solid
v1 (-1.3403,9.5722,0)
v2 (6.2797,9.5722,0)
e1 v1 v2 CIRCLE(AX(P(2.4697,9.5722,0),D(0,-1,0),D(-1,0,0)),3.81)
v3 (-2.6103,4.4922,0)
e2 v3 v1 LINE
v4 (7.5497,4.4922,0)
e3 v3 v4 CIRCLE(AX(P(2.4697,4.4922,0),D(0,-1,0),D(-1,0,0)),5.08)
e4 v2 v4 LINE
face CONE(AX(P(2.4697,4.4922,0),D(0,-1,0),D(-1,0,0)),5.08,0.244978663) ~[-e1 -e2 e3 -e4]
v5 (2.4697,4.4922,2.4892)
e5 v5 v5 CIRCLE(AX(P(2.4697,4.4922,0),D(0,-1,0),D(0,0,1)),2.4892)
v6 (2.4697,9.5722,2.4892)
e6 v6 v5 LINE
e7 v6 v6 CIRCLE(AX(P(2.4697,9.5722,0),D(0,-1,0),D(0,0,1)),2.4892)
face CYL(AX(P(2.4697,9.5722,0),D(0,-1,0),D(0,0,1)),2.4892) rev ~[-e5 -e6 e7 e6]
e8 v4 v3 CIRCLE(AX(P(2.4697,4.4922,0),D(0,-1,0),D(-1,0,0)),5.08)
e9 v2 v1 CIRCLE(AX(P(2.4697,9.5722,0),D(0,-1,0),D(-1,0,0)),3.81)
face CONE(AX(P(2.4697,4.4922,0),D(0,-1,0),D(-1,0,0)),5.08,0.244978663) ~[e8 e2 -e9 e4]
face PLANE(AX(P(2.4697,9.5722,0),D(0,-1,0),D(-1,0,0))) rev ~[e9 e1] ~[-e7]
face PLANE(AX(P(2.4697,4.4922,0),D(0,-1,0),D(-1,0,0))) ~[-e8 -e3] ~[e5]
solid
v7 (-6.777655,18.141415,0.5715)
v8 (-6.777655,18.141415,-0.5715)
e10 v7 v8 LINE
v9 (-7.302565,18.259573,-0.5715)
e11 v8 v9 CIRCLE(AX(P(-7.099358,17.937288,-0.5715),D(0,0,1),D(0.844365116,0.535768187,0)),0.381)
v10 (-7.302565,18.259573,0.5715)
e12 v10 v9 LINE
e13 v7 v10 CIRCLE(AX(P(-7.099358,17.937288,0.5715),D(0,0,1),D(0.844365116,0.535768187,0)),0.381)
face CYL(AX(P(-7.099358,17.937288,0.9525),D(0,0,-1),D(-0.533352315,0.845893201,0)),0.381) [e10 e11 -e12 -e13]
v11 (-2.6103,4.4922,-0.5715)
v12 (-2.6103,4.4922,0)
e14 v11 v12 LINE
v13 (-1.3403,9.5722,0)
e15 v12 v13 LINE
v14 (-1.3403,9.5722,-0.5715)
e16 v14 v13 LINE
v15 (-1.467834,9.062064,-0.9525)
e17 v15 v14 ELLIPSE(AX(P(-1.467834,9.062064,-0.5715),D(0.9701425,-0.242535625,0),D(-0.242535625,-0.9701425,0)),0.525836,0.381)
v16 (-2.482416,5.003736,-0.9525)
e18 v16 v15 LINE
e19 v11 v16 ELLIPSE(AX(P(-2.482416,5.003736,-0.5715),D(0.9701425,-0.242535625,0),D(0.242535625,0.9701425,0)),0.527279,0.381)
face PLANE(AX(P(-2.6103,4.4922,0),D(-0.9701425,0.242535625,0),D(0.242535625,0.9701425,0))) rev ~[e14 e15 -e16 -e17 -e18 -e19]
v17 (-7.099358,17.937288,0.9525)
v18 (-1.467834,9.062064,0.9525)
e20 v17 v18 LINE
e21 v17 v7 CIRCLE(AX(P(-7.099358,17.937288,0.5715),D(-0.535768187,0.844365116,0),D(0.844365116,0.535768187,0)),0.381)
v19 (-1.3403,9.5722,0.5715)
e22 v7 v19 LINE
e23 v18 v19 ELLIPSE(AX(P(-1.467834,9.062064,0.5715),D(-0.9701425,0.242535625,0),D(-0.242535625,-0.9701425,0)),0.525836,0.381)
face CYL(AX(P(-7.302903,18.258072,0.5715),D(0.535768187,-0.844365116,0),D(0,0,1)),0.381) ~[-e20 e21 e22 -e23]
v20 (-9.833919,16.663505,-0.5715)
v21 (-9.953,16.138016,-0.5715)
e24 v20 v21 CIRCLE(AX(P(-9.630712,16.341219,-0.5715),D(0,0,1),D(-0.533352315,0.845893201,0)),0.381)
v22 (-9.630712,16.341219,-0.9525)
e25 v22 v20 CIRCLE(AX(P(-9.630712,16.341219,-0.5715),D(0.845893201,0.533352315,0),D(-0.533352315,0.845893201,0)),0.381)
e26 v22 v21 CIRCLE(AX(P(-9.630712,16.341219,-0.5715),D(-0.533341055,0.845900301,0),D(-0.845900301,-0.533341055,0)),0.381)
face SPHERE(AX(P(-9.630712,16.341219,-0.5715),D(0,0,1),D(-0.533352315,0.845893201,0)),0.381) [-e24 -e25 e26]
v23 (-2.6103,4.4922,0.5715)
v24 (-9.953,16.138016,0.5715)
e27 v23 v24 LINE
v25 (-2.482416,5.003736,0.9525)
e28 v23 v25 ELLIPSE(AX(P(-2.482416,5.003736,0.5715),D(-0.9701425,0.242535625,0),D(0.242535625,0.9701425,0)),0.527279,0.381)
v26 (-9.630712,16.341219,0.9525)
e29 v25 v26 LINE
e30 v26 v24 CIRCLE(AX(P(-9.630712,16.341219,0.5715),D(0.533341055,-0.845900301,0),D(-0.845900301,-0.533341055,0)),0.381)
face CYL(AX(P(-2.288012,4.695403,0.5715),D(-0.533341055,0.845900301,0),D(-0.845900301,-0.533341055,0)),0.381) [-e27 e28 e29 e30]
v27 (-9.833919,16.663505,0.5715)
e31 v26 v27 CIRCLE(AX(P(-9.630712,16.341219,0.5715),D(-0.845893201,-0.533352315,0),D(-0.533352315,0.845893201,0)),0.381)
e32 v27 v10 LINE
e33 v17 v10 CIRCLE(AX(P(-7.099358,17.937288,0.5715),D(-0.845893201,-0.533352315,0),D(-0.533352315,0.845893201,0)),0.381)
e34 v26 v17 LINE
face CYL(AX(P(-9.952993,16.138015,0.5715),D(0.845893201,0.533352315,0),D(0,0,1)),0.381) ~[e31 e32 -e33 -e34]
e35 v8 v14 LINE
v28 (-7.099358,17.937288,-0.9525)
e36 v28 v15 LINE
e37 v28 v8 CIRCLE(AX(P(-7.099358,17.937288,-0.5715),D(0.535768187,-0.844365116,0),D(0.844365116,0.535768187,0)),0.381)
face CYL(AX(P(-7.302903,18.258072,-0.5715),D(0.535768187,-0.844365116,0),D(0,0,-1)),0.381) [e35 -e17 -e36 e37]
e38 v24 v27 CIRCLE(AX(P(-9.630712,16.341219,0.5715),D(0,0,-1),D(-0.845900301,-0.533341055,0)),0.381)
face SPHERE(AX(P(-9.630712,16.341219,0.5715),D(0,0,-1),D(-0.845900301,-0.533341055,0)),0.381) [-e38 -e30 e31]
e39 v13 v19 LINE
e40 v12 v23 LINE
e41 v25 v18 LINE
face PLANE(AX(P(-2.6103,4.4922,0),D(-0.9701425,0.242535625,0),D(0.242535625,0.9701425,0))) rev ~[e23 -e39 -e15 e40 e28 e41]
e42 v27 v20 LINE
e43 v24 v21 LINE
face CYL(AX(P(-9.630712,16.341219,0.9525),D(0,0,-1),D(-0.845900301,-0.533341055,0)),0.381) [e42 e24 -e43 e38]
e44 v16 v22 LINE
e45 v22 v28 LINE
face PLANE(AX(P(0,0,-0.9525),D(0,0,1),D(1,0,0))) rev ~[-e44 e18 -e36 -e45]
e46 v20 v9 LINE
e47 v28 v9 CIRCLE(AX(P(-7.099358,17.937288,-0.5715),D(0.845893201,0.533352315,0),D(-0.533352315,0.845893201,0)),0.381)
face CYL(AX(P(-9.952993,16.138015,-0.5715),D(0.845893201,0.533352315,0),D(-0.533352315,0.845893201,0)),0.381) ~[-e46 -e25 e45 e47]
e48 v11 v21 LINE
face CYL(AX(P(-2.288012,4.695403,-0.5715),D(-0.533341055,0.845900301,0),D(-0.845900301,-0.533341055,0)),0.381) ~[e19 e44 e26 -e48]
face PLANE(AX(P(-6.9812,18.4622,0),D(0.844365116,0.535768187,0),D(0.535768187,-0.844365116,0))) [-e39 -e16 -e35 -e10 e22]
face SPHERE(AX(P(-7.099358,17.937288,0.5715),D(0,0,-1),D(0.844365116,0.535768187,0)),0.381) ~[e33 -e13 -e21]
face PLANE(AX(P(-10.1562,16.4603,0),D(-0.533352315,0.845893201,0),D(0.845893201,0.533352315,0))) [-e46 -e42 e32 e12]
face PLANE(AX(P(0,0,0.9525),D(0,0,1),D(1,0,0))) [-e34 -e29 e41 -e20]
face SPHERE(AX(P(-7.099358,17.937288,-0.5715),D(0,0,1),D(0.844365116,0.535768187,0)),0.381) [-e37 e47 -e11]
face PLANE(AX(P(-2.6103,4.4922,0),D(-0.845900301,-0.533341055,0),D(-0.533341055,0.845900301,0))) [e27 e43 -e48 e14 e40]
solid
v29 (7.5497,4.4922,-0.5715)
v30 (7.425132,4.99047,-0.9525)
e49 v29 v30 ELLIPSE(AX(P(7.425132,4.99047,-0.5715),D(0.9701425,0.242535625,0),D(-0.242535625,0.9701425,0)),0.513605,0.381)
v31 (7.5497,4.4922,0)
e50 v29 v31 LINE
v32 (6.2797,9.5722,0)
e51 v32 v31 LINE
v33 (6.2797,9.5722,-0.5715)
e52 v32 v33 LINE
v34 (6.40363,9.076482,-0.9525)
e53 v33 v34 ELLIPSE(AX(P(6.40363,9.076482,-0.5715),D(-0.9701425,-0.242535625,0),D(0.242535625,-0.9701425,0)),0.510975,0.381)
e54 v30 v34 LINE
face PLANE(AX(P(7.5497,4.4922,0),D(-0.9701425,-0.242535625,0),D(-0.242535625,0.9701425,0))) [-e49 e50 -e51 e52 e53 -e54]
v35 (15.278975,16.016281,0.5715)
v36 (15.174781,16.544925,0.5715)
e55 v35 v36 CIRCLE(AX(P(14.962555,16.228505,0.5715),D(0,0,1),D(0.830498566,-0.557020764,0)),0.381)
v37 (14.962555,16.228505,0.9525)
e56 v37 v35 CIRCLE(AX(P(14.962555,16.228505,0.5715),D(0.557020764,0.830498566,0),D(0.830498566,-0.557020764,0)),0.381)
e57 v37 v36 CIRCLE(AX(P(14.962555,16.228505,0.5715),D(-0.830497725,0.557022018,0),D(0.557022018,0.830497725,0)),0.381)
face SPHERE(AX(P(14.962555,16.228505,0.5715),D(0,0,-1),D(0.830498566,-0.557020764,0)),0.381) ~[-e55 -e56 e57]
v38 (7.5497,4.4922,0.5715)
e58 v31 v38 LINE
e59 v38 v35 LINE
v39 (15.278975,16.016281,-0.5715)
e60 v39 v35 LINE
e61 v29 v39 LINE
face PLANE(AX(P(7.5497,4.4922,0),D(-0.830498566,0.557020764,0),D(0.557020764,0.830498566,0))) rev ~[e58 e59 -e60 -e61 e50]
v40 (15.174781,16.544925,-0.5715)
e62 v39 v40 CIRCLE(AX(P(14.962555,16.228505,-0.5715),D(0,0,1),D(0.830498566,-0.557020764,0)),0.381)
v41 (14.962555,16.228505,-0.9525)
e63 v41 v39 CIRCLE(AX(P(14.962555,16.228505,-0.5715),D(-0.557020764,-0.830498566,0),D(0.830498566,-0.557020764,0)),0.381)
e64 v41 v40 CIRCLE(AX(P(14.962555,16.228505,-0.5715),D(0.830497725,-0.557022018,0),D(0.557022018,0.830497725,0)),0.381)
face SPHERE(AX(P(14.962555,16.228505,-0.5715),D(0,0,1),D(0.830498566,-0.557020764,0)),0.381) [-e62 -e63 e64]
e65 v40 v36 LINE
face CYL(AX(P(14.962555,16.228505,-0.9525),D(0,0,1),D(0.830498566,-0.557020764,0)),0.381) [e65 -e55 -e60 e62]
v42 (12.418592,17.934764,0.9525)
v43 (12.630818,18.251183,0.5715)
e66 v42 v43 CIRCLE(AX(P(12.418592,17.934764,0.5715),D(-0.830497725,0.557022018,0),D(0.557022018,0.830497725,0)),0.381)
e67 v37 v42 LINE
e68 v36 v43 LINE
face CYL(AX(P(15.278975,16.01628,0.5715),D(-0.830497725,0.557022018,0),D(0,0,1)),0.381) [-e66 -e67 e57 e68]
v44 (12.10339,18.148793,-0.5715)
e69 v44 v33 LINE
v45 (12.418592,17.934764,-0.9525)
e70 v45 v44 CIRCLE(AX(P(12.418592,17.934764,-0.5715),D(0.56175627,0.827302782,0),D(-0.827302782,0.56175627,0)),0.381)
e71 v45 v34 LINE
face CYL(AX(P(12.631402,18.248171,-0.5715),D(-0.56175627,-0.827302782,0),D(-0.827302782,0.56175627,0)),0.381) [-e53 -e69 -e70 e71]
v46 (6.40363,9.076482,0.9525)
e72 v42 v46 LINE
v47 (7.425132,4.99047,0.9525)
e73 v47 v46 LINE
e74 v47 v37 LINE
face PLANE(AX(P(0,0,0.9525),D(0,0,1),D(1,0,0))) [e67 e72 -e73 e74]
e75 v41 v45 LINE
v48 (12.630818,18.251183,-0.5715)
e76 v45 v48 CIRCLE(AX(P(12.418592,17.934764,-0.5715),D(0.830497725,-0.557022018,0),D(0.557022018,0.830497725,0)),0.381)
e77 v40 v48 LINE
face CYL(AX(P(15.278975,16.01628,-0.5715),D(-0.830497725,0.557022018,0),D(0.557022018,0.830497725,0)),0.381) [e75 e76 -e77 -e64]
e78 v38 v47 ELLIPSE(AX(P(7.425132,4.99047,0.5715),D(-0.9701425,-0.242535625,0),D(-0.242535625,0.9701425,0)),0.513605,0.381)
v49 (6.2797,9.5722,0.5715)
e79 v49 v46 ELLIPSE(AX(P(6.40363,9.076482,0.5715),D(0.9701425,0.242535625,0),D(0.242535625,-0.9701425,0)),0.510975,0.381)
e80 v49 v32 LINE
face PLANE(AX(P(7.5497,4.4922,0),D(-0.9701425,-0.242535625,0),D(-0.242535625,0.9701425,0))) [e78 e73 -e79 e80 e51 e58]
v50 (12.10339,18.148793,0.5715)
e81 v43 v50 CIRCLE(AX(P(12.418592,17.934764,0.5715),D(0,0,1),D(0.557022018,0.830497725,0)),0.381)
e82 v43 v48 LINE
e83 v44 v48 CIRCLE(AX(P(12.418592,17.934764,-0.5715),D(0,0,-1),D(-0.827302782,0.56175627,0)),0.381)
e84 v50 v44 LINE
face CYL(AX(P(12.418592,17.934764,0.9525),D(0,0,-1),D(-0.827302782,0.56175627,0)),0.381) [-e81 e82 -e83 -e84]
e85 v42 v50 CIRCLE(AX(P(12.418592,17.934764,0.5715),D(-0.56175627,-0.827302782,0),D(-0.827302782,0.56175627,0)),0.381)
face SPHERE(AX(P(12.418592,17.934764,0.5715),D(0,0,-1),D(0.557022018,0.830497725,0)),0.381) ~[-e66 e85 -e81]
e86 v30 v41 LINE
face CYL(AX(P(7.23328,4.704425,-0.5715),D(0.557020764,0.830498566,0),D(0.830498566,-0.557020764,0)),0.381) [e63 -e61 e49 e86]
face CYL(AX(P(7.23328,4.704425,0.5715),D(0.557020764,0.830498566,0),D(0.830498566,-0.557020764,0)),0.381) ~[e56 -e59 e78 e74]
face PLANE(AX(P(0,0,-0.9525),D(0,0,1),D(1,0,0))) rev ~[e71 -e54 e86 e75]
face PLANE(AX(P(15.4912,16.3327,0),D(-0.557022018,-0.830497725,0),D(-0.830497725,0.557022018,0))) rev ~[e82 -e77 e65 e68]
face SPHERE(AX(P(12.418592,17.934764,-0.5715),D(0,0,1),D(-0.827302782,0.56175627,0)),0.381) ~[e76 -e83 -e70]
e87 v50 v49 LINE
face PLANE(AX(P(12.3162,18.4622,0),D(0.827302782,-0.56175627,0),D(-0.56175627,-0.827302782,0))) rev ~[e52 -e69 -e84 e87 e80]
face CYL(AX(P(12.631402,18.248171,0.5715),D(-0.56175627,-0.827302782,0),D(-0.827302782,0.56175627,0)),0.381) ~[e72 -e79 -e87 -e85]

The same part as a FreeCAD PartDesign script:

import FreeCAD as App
import Part
import Sketcher
from FreeCAD import Vector
Q = App.Units.Quantity


def edges_at(feature, points):
    """Names of the edges that pass closest to the given points."""
    edges = feature.Shape.Edges
    near = lambda p: min(range(len(edges)), key=lambda i: edges[i].distToShape(Part.Vertex(*p))[0])
    return sorted({f"Edge{near(p) + 1}" for p in points})


def add_polygon(sketch, points):
    """Adds a closed chain of lines whose ends are joined by coincident constraints."""
    first, n = sketch.GeometryCount, len(points)
    for a, b in zip(points, points[1:] + points[:1]):
        sketch.addGeometry(Part.LineSegment(App.Vector(*a, 0), App.Vector(*b, 0)), False)
    for i in range(n):
        sketch.addConstraint(Sketcher.Constraint("Coincident", first + i, 2, first + (i + 1) % n, 1))

doc = App.newDocument("Part")
body = doc.addObject("PartDesign::Body", "Body")
body.AllowCompound = True

# Sketch on XY plane
sketch1 = body.newObject("Sketcher::SketchObject", "Sketch")
sketch1.AttachmentSupport = (doc.getObject("XY_Plane"), [""])
sketch1.MapMode = "FlatFace"
add_polygon(sketch1, [(-2.6, 4.5), (2.5, 4.5), (2.5, 9.6), (-1.3, 9.6)])  # lines 0-3
sketch1.addGeometry(Part.LineSegment(Vector(2.5, 9.6, 0), Vector(2.5, 4.5, 0)), True)  # axis
sketch1.addConstraint(Sketcher.Constraint("Horizontal", 0))
sketch1.addConstraint(Sketcher.Constraint("Vertical", 1))
sketch1.addConstraint(Sketcher.Constraint("Horizontal", 2))
sketch1.addConstraint(Sketcher.Constraint("Vertical", 4))
sketch1.addConstraint(Sketcher.Constraint("Coincident", 4, 1, 1, 2))
sketch1.addConstraint(Sketcher.Constraint("Horizontal", 3, 2, 4, 2))
sketch1.addConstraint(Sketcher.Constraint("Equal", 0, 1))
sketch1.addConstraint(Sketcher.Constraint("DistanceX", 0, 1, 0, 2, Q("0.2 in")))
sketch1.addConstraint(Sketcher.Constraint("DistanceX", 2, 2, 2, 1, Q("0.15 in")))
sketch1.addConstraint(Sketcher.Constraint("DistanceX", -1, 1, 0, 2, Q("2.4697 mm")))
sketch1.addConstraint(Sketcher.Constraint("DistanceY", -1, 1, 0, 2, Q("4.4922 mm")))
revolution = body.newObject("PartDesign::Revolution", "Revolution")
revolution.Profile = sketch1
revolution.ReferenceAxis = (sketch1, ["Axis0"])
revolution.Angle = 360

# Sketch on XY plane
sketch2 = body.newObject("Sketcher::SketchObject", "Sketch001")
sketch2.AttachmentSupport = (doc.getObject("XY_Plane"), [""])
sketch2.MapMode = "FlatFace"
add_polygon(sketch2, [(-10.2, 16.5), (-2.6, 4.5), (-1.3, 9.6), (-7, 18.5)])  # lines 0-3
sketch2.addConstraint(Sketcher.Constraint("Perpendicular", 0, 3))
sketch2.addConstraint(Sketcher.Constraint("DistanceY", 0, 2, 1, 2, Q("0.2 in")))
sketch2.addConstraint(Sketcher.Constraint("DistanceY", 0, 2, 2, 2, Q("0.55 in")))
sketch2.addConstraint(Sketcher.Constraint("DistanceX", 3, 2, 2, 2, Q("0.125 in")))
sketch2.addConstraint(Sketcher.Constraint("DistanceX", 0, 2, 1, 2, Q("0.05 in")))
sketch2.addConstraint(Sketcher.Constraint("Distance", 0, Q("14.1484 mm")))
sketch2.addConstraint(Sketcher.Constraint("DistanceX", 0, 2, -1, 1, Q("2.6103 mm")))
sketch2.addConstraint(Sketcher.Constraint("DistanceY", -1, 1, 0, 2, Q("4.4922 mm")))
pad1 = body.newObject("PartDesign::Pad", "Pad")
pad1.Profile = sketch2
pad1.Length = Q("0.075 in")
pad1.Midplane = True

# Sketch on XY plane
sketch3 = body.newObject("Sketcher::SketchObject", "Sketch002")
sketch3.AttachmentSupport = (doc.getObject("XY_Plane"), [""])
sketch3.MapMode = "FlatFace"
add_polygon(sketch3, [(6.3, 9.6), (7.5, 4.5), (15.5, 16.3), (12.3, 18.5)])  # lines 0-3
sketch3.addConstraint(Sketcher.Constraint("Perpendicular", 1, 2))
sketch3.addConstraint(Sketcher.Constraint("DistanceY", 0, 2, 3, 2, Q("0.2 in")))
sketch3.addConstraint(Sketcher.Constraint("DistanceY", 0, 2, 2, 2, Q("0.55 in")))
sketch3.addConstraint(Sketcher.Constraint("DistanceX", 2, 2, 1, 2, Q("0.125 in")))
sketch3.addConstraint(Sketcher.Constraint("Angle", 1, Q("56.15 deg")))
sketch3.addConstraint(Sketcher.Constraint("DistanceX", 3, 2, 0, 2, Q("0.05 in")))
sketch3.addConstraint(Sketcher.Constraint("DistanceX", -1, 1, 1, 2, Q("0.6099 in")))
sketch3.addConstraint(Sketcher.Constraint("DistanceY", -1, 1, 0, 2, Q("4.4922 mm")))
pad2 = body.newObject("PartDesign::Pad", "Pad001")
pad2.Profile = sketch3
pad2.Length = Q("0.075 in")
pad2.Midplane = True
doc.recompute()

fillet = body.newObject("PartDesign::Fillet", "Fillet")
fillet.Base = (pad2, edges_at(pad2, [
    (-6.383, 10.476, 0.953),
    (-4.161, 14.017, 0.953),
    (-4.161, 14.017, -0.953),
    (9.298, 14.017, 0.953),
    (12.316, 18.462, 0),
    (9.298, 14.017, -0.953),
    (13.904, 17.397, -0.953),
    (13.904, 17.397, 0.953),
    (15.491, 16.333, 0),
    (11.52, 10.412, -0.953),
    (11.52, 10.412, 0.953),
    (-8.569, 17.461, 0.953),
    (-10.156, 16.46, 0),
    (-8.569, 17.461, -0.953),
    (-6.981, 18.462, 0),
    (-6.383, 10.476, -0.953),
]))
fillet.Radius = Q("0.015 in")

# Sketch on XZ plane
sketch4 = body.newObject("Sketcher::SketchObject", "Sketch003")
sketch4.AttachmentSupport = (doc.getObject("XZ_Plane"), [""])
sketch4.MapMode = "FlatFace"
sketch4.AttachmentOffset = App.Placement(Vector(0, 0, -9.5722), App.Rotation())
sketch4.addGeometry(Part.Circle(Vector(2.5, 0, 0), Vector(0, 0, 1), 2.5), False)
sketch4.addConstraint(Sketcher.Constraint("PointOnObject", 0, 3, -1))
sketch4.addConstraint(Sketcher.Constraint("Diameter", 0, Q("0.196 in")))
sketch4.addConstraint(Sketcher.Constraint("DistanceX", -1, 1, 0, 3, Q("2.4697 mm")))
doc.recompute()
hole = body.newObject("PartDesign::Hole", "Hole")
hole.Profile = sketch4
hole.ThreadType = "None"
hole.Diameter = Q("0.196 in")
hole.DepthType = "Dimension"
hole.Depth = Q("0.75 in")
hole.DrillPoint = "Angled"
hole.DrillPointAngle = 118
hole.Reversed = True

doc.recompute()
